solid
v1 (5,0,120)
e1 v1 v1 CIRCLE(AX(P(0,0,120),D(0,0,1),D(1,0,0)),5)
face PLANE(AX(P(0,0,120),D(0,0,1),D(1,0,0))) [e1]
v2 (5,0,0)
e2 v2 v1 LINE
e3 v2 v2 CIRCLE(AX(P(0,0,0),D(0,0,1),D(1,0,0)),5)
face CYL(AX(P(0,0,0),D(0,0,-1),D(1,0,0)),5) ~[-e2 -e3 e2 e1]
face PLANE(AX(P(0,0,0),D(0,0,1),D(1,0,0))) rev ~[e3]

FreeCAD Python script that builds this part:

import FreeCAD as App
import Part
import Sketcher
from FreeCAD import Vector

doc = App.newDocument("Part")
params = doc.addObject("Spreadsheet::Sheet", "Params")
for row, (alias, value) in enumerate([
    ("sketch1_diameter", "10 mm"),
    ("pad1_length", "120 mm"),
], start=1):
    params.set(f"A{row}", alias)
    params.set(f"B{row}", "=" + value)
    params.setAlias(f"B{row}", alias)

body = doc.addObject("PartDesign::Body", "Body")

sketch1 = body.newObject("Sketcher::SketchObject", "Sketch")
sketch1.AttachmentSupport = (doc.getObject("XY_Plane"), [""])
sketch1.MapMode = "FlatFace"
sketch1.addGeometry(Part.Circle(Vector(0, 0, 0), Vector(0, 0, 1), 5), False)
sketch1.addConstraint(Sketcher.Constraint("Coincident", 0, 3, -1, 1))
sketch1.addConstraint(Sketcher.Constraint("Diameter", 0, 10.0))
sketch1.setExpression("Constraints[1]", "Params.sketch1_diameter")
pad1 = body.newObject("PartDesign::Pad", "Pad")
pad1.Profile = sketch1
pad1.setExpression("Length", "Params.pad1_length")

doc.recompute()
